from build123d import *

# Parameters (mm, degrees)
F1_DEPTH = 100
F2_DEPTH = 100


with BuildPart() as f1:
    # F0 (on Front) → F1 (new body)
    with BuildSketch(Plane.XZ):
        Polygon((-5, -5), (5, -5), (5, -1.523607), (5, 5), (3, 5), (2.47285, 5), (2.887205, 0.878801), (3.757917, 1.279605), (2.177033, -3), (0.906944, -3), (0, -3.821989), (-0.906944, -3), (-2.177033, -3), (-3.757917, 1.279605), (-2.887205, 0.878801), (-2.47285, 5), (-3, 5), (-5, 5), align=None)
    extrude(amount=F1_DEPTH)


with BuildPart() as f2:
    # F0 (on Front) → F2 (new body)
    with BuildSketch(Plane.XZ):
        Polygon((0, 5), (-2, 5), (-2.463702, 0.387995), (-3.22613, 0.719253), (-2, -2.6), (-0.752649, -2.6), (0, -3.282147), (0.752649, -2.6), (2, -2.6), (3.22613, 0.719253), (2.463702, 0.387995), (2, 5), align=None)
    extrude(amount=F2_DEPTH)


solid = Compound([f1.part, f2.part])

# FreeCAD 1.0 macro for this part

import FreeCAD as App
import Part
import Sketcher

V = App.Vector
Q = App.Units.Quantity

doc = App.newDocument("Part")
body = doc.addObject("PartDesign::Body", "Body")

# Sketch on XZ plane
sketch1 = body.newObject("Sketcher::SketchObject", "Sketch")
sketch1.AttachmentSupport = (doc.getObject("XZ_Plane"), [""])
sketch1.MapMode = "FlatFace"
sketch1.addGeometry([
    Part.LineSegment(V(-5, -5, 0), V(5, -5, 0)),  # 0
    Part.LineSegment(V(5, -5, 0), V(5, 5, 0)),  # 1
    Part.LineSegment(V(5, 5, 0), V(2.5, 5, 0)),  # 2
    Part.LineSegment(V(2.5, 5, 0), V(2.9, 0.9, 0)),  # 3
    Part.LineSegment(V(2.9, 0.9, 0), V(3.8, 1.3, 0)),  # 4
    Part.LineSegment(V(3.8, 1.3, 0), V(2.2, -3, 0)),  # 5
    Part.LineSegment(V(2.2, -3, 0), V(0.9, -3, 0)),  # 6
    Part.LineSegment(V(0.9, -3, 0), V(0, -3.8, 0)),  # 7
    Part.LineSegment(V(0, -3.8, 0), V(-0.9, -3, 0)),  # 8
    Part.LineSegment(V(-0.9, -3, 0), V(-2.2, -3, 0)),  # 9
    Part.LineSegment(V(-2.2, -3, 0), V(-3.8, 1.3, 0)),  # 10
    Part.LineSegment(V(-3.8, 1.3, 0), V(-2.9, 0.9, 0)),  # 11
    Part.LineSegment(V(-2.9, 0.9, 0), V(-2.5, 5, 0)),  # 12
    Part.LineSegment(V(-2.5, 5, 0), V(-5, 5, 0)),  # 13
    Part.LineSegment(V(-5, 5, 0), V(-5, -5, 0)),  # 14
], False)
sketch1.addConstraint([
    Sketcher.Constraint("Coincident", 0, 2, 1, 1),
    Sketcher.Constraint("Coincident", 1, 2, 2, 1),
    Sketcher.Constraint("Coincident", 2, 2, 3, 1),
    Sketcher.Constraint("Coincident", 3, 2, 4, 1),
    Sketcher.Constraint("Coincident", 4, 2, 5, 1),
    Sketcher.Constraint("Coincident", 5, 2, 6, 1),
    Sketcher.Constraint("Coincident", 6, 2, 7, 1),
    Sketcher.Constraint("Coincident", 7, 2, 8, 1),
    Sketcher.Constraint("Coincident", 8, 2, 9, 1),
    Sketcher.Constraint("Coincident", 9, 2, 10, 1),
    Sketcher.Constraint("Coincident", 10, 2, 11, 1),
    Sketcher.Constraint("Coincident", 11, 2, 12, 1),
    Sketcher.Constraint("Coincident", 12, 2, 13, 1),
    Sketcher.Constraint("Coincident", 13, 2, 14, 1),
    Sketcher.Constraint("Coincident", 14, 2, 0, 1),
    Sketcher.Constraint("Horizontal", 0),
    Sketcher.Constraint("Vertical", 1),
    Sketcher.Constraint("Horizontal", 2),
    Sketcher.Constraint("Horizontal", 6),
    Sketcher.Constraint("Horizontal", 9),
    Sketcher.Constraint("Horizontal", 13),
    Sketcher.Constraint("Vertical", 14),
    Sketcher.Constraint("Symmetric", 0, 2, 13, 2, -1, 1),
    Sketcher.Constraint("Symmetric", 6, 2, 8, 2, -2),
    Sketcher.Constraint("Symmetric", 4, 2, 10, 2, -2),
    Sketcher.Constraint("Symmetric", 3, 2, 11, 2, -2),
    Sketcher.Constraint("Symmetric", 2, 2, 12, 2, -2),
    Sketcher.Constraint("PointOnObject", 7, 2, -2),
    Sketcher.Constraint("Equal", 6, 9),
    Sketcher.Constraint("Equal", 0, 1),
    Sketcher.Constraint("DistanceX", 0, 1, 0, 2, Q("10 mm")),
    Sketcher.Constraint("DistanceY", 5, 2, -1, 1, Q("3 mm")),
    Sketcher.Constraint("DistanceX", 2, 2, 2, 1, Q("2.52715 mm")),
    Sketcher.Constraint("DistanceX", 6, 2, 6, 1, Q("1.270089 mm")),
    Sketcher.Constraint("DistanceY", -1, 1, 3, 2, Q("0.878801 mm")),
    Sketcher.Constraint("Distance", 4, Q("0.958532 mm")),
    Sketcher.Constraint("Distance", 5, Q("4.56226 mm")),
    Sketcher.Constraint("DistanceY", 7, 2, -1, 1, Q("3.821989 mm")),
    Sketcher.Constraint("DistanceX", 5, 2, 3, 2, Q("0.710172 mm")),
    Sketcher.Constraint("DistanceX", 8, 2, 3, 2, Q("3.794149 mm")),
])
pad1 = body.newObject("PartDesign::Pad", "Pad")
pad1.Profile = sketch1
pad1.Length = 100
body2 = doc.addObject("PartDesign::Body", "Body001")

# Sketch on XZ plane
sketch2 = body2.newObject("Sketcher::SketchObject", "Sketch001")
sketch2.AttachmentSupport = (doc.getObject("XZ_Plane001"), [""])
sketch2.MapMode = "FlatFace"
sketch2.addGeometry([
    Part.LineSegment(V(-2, 5, 0), V(-2.5, 0.4, 0)),  # 0
    Part.LineSegment(V(-2.5, 0.4, 0), V(-3.2, 0.7, 0)),  # 1
    Part.LineSegment(V(-3.2, 0.7, 0), V(-2, -2.6, 0)),  # 2
    Part.LineSegment(V(-2, -2.6, 0), V(-0.8, -2.6, 0)),  # 3
    Part.LineSegment(V(-0.8, -2.6, 0), V(0, -3.3, 0)),  # 4
    Part.LineSegment(V(0, -3.3, 0), V(0.8, -2.6, 0)),  # 5
    Part.LineSegment(V(0.8, -2.6, 0), V(2, -2.6, 0)),  # 6
    Part.LineSegment(V(2, -2.6, 0), V(3.2, 0.7, 0)),  # 7
    Part.LineSegment(V(3.2, 0.7, 0), V(2.5, 0.4, 0)),  # 8
    Part.LineSegment(V(2.5, 0.4, 0), V(2, 5, 0)),  # 9
    Part.LineSegment(V(2, 5, 0), V(-2, 5, 0)),  # 10
], False)
sketch2.addConstraint([
    Sketcher.Constraint("Coincident", 0, 2, 1, 1),
    Sketcher.Constraint("Coincident", 1, 2, 2, 1),
    Sketcher.Constraint("Coincident", 2, 2, 3, 1),
    Sketcher.Constraint("Coincident", 3, 2, 4, 1),
    Sketcher.Constraint("Coincident", 4, 2, 5, 1),
    Sketcher.Constraint("Coincident", 5, 2, 6, 1),
    Sketcher.Constraint("Coincident", 6, 2, 7, 1),
    Sketcher.Constraint("Coincident", 7, 2, 8, 1),
    Sketcher.Constraint("Coincident", 8, 2, 9, 1),
    Sketcher.Constraint("Coincident", 9, 2, 10, 1),
    Sketcher.Constraint("Coincident", 10, 2, 0, 1),
    Sketcher.Constraint("Horizontal", 3),
    Sketcher.Constraint("Horizontal", 6),
    Sketcher.Constraint("Horizontal", 10),
    Sketcher.Constraint("Symmetric", 3, 2, 5, 2, -2),
    Sketcher.Constraint("Symmetric", 1, 2, 7, 2, -2),
    Sketcher.Constraint("Symmetric", 0, 2, 8, 2, -2),
    Sketcher.Constraint("PointOnObject", 4, 2, -2),
    Sketcher.Constraint("Vertical", 6, 2, 9, 2),
    Sketcher.Constraint("Vertical", 2, 2, 10, 2),
    Sketcher.Constraint("Equal", 3, 6),
    Sketcher.Constraint("DistanceX", 10, 2, 10, 1, Q("4 mm")),
    Sketcher.Constraint("DistanceY", -1, 1, 9, 2, Q("5 mm")),
    Sketcher.Constraint("DistanceY", 2, 2, -1, 1, Q("2.6 mm")),
    Sketcher.Constraint("DistanceX", 3, 1, 3, 2, Q("1.247351 mm")),
    Sketcher.Constraint("DistanceY", 4, 2, 1, 2, Q("4.0014 mm")),
    Sketcher.Constraint("DistanceX", 0, 2, 6, 2, Q("4.463702 mm")),
    Sketcher.Constraint("Distance", 1, Q("0.831281 mm")),
    Sketcher.Constraint("Distance", 2, Q("3.538479 mm")),
    Sketcher.Constraint("Distance", 4, Q("1.015778 mm")),
])
pad2 = body2.newObject("PartDesign::Pad", "Pad001")
pad2.Profile = sketch2
pad2.Length = 100

doc.recompute()
